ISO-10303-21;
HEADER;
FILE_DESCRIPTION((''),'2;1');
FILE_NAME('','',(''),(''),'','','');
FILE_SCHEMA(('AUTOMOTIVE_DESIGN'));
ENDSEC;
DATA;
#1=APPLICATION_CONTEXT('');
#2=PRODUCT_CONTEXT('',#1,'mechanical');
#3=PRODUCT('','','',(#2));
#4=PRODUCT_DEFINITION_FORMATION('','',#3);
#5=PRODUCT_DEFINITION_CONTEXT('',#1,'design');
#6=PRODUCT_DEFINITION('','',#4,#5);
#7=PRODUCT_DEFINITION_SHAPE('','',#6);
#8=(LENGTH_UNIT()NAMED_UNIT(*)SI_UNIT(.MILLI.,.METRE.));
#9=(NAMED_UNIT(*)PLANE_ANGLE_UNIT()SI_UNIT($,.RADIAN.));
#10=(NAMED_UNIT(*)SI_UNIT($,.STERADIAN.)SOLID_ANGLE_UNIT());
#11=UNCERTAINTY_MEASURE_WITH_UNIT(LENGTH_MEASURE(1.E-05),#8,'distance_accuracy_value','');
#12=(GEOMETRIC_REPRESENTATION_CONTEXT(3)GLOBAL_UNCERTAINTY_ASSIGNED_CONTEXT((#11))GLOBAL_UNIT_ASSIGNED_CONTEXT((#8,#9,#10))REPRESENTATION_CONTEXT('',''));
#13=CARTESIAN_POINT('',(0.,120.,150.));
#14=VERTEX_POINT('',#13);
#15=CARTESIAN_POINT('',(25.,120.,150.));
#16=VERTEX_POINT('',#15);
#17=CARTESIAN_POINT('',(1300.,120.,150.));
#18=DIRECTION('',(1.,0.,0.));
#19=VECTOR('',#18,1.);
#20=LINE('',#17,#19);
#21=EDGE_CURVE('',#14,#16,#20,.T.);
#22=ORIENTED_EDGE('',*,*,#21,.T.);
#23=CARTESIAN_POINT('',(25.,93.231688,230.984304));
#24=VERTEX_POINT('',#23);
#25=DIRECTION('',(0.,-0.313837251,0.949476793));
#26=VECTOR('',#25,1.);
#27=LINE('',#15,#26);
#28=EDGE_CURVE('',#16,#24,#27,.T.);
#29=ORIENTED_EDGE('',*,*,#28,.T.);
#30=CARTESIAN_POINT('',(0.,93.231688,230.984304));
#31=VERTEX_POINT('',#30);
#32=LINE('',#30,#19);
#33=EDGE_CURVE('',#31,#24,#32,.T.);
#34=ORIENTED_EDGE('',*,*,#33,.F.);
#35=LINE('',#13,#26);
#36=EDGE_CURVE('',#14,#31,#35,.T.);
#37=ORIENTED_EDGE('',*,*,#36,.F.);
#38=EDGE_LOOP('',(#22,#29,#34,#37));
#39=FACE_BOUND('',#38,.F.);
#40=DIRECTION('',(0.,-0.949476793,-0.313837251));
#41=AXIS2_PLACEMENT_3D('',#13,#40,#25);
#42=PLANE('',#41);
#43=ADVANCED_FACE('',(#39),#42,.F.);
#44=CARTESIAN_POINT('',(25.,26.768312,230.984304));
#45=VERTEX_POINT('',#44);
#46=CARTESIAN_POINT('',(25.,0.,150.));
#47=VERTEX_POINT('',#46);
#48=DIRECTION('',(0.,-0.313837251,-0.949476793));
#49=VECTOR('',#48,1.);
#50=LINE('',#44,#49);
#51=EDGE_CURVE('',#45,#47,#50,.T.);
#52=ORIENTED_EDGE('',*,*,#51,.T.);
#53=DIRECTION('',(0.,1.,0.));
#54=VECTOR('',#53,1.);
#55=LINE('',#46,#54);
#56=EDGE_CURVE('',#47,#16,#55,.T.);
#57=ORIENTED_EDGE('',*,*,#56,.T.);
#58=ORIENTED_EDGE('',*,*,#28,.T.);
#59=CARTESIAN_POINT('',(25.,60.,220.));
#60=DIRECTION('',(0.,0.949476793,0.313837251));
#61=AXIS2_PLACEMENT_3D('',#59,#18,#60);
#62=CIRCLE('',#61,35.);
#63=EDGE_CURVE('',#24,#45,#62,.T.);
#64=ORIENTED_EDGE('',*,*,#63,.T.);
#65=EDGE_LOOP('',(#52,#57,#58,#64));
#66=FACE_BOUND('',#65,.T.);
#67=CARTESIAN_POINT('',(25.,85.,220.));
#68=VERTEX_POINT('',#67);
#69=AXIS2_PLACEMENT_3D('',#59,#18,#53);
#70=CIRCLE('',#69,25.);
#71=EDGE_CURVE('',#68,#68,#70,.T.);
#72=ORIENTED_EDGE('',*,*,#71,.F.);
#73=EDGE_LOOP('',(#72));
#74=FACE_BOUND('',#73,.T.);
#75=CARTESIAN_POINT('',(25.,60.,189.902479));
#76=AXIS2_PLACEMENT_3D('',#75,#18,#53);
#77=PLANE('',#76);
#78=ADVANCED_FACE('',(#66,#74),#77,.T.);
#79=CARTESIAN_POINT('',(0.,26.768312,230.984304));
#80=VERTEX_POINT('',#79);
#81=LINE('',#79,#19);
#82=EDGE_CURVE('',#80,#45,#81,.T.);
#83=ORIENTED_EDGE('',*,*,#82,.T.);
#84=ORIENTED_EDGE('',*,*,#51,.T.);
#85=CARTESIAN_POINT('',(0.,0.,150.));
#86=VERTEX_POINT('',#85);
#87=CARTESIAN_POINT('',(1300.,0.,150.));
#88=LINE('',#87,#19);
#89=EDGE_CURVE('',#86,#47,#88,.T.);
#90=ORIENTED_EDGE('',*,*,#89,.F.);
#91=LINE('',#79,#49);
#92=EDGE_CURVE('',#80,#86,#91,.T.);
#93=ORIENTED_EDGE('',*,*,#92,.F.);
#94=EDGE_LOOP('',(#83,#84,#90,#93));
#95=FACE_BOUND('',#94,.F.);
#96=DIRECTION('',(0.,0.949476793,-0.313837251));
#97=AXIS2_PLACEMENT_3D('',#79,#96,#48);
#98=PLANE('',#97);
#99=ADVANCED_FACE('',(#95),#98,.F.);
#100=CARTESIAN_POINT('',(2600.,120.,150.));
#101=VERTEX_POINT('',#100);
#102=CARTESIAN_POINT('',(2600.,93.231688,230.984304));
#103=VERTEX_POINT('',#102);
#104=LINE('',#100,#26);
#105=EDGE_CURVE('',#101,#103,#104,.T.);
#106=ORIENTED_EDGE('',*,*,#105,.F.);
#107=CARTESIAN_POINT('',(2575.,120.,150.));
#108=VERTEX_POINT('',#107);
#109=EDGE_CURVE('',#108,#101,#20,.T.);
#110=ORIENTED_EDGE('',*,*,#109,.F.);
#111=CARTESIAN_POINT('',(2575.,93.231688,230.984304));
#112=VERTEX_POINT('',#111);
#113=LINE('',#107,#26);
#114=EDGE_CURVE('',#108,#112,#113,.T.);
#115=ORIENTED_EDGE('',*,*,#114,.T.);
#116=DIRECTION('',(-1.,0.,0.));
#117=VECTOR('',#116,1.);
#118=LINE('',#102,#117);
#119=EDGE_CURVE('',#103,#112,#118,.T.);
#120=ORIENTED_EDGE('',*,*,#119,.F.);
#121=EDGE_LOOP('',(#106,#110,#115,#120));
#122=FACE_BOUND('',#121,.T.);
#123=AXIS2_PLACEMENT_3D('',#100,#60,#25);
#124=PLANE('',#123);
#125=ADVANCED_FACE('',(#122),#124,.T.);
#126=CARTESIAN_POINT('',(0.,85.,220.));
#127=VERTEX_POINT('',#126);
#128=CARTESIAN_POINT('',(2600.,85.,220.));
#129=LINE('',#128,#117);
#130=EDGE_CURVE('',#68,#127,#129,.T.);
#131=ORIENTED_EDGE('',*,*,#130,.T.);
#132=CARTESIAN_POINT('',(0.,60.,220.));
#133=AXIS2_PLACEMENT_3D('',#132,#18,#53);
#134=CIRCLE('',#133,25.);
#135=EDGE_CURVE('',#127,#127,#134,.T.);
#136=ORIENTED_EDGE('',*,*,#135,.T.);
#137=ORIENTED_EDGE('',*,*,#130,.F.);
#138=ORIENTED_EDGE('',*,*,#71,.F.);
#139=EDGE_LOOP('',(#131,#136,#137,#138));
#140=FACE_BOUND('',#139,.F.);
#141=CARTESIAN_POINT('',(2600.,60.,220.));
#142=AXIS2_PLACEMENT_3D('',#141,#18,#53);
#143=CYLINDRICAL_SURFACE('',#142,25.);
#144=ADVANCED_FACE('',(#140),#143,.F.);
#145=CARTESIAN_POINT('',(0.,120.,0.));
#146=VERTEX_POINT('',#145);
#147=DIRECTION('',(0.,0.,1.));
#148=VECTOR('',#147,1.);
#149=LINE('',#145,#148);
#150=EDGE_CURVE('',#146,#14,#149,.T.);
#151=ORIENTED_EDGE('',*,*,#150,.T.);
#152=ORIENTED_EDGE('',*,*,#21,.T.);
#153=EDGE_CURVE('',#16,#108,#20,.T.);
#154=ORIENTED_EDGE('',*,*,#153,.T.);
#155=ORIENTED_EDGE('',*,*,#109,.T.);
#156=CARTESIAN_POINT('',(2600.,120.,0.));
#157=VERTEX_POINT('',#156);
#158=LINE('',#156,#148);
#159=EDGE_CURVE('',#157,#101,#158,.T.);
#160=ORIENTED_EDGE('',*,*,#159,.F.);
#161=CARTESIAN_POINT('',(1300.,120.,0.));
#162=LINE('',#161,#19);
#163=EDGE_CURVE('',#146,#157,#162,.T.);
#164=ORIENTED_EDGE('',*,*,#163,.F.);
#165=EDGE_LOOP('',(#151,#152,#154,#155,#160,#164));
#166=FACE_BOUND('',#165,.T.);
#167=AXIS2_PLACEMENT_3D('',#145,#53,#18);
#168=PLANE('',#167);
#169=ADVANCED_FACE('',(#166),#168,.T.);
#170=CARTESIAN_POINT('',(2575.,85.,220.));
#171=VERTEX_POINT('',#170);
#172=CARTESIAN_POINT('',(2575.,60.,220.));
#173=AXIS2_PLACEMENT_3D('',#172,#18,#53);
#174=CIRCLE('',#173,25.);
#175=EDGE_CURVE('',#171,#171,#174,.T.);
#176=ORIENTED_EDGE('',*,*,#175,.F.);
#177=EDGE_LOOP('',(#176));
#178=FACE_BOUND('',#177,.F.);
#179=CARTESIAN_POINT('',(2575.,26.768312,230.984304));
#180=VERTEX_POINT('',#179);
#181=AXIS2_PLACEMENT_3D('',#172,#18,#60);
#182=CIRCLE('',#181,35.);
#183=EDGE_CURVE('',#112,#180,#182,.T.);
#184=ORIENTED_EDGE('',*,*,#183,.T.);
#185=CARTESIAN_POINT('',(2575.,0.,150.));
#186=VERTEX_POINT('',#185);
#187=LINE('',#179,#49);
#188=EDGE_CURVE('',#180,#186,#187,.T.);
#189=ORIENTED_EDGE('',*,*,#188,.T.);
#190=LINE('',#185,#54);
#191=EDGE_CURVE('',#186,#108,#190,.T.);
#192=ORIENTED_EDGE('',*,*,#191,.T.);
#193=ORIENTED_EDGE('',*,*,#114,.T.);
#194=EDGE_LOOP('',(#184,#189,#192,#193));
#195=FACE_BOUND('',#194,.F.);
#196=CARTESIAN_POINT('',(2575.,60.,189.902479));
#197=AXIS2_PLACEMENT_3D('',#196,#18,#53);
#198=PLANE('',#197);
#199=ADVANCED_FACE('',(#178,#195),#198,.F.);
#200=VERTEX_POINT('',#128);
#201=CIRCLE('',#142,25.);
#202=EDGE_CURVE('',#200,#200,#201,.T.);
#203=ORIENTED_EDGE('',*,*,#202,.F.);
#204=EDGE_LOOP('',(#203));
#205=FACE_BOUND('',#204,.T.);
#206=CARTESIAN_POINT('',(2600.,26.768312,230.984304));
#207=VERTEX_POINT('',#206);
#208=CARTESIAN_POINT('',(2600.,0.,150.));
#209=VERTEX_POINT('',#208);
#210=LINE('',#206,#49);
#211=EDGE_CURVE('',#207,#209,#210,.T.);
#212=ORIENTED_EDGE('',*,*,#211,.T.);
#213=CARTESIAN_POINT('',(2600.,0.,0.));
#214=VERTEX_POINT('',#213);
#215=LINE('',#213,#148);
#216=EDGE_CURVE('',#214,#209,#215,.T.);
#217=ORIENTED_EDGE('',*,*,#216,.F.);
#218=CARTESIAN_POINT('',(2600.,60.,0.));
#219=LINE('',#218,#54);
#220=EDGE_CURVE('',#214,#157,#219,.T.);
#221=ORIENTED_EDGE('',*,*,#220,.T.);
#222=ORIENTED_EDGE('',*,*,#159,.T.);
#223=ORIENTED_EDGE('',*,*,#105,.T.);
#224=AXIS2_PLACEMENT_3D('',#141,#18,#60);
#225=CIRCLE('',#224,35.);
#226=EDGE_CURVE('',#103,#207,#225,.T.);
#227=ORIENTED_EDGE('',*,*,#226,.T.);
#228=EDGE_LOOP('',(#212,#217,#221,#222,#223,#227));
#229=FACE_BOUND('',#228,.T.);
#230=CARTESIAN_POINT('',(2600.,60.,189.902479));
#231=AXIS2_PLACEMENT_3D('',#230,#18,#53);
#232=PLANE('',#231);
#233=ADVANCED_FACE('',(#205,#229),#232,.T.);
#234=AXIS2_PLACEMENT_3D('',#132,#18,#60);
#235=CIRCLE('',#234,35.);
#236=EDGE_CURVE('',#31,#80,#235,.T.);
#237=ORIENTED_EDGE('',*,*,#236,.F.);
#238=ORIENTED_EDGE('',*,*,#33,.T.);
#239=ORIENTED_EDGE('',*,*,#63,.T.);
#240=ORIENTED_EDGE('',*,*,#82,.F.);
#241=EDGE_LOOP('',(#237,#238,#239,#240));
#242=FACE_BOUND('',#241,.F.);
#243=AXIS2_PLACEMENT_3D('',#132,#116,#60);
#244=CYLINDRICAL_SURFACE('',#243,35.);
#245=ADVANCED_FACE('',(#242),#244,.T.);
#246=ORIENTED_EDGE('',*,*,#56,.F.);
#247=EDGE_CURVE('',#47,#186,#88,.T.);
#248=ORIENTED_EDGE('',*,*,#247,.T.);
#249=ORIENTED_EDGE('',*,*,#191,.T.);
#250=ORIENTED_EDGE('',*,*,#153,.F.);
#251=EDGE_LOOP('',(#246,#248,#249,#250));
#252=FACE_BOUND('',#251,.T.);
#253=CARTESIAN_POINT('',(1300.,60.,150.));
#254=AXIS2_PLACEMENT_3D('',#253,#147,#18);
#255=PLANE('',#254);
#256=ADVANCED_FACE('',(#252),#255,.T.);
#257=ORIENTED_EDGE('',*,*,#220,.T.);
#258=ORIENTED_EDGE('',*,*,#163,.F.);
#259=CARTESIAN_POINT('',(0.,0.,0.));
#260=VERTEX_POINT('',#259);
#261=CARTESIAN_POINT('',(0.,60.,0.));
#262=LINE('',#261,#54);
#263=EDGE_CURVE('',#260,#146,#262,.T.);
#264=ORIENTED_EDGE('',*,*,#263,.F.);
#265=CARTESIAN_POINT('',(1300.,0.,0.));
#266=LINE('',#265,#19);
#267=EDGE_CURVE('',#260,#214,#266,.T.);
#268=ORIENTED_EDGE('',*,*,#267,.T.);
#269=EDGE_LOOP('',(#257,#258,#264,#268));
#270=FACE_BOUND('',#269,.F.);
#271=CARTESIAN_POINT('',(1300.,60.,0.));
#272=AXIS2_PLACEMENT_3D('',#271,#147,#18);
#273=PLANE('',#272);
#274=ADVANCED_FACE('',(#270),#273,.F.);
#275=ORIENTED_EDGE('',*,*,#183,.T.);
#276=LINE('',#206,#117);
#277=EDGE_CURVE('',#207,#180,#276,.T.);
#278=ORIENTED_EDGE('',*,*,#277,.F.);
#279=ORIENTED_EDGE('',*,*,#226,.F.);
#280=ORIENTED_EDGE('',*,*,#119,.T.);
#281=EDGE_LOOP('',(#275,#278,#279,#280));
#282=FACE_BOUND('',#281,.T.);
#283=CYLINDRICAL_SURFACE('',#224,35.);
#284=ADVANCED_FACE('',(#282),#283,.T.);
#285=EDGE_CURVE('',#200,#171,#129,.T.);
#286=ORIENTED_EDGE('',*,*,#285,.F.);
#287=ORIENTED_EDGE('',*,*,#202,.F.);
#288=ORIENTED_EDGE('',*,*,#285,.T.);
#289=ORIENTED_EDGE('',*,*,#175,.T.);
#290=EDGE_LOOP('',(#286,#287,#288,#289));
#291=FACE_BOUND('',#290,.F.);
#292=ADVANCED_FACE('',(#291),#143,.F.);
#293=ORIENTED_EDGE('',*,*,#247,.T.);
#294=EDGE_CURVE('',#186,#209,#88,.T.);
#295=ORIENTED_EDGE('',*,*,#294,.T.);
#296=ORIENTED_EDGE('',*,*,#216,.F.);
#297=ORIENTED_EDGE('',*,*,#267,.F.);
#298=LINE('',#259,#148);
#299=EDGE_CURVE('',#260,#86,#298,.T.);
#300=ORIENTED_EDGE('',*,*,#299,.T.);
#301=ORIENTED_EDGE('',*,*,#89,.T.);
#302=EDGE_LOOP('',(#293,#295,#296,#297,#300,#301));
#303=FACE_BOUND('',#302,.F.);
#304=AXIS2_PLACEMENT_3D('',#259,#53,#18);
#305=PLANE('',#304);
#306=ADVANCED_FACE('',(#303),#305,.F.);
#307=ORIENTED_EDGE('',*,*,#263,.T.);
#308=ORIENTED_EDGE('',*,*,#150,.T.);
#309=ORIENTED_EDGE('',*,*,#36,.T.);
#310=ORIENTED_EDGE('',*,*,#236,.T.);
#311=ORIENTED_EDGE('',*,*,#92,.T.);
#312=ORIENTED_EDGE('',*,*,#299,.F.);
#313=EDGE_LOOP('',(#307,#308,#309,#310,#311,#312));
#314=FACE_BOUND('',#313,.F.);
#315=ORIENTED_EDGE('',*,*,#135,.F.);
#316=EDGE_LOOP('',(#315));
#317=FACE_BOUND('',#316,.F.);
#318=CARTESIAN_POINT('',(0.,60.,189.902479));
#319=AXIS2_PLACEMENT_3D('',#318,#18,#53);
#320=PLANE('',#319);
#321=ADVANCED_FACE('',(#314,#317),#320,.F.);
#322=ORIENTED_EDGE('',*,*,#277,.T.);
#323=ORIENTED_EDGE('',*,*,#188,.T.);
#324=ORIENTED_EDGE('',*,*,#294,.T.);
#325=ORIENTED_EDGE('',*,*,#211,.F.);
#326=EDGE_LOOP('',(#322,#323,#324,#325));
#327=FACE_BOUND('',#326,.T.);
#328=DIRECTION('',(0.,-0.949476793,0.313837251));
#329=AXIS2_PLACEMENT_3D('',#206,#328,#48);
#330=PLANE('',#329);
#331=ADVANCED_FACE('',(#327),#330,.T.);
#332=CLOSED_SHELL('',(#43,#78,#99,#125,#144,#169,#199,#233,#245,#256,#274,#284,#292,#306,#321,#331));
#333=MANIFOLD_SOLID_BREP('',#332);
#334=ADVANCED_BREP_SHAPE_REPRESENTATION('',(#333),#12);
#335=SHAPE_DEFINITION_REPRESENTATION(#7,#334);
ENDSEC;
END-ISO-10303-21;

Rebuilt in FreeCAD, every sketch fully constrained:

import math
import FreeCAD as App
import Part
import Sketcher
from FreeCAD import Vector


def add_polygon(sketch, points):
    """Adds a closed chain of lines whose ends are joined by coincident constraints."""
    first, n = sketch.GeometryCount, len(points)
    for a, b in zip(points, points[1:] + points[:1]):
        sketch.addGeometry(Part.LineSegment(App.Vector(*a, 0), App.Vector(*b, 0)), False)
    for i in range(n):
        sketch.addConstraint(Sketcher.Constraint("Coincident", first + i, 2, first + (i + 1) % n, 1))

doc = App.newDocument("Part")
body = doc.addObject("PartDesign::Body", "Body")

# Sketch on XY plane
sketch1 = body.newObject("Sketcher::SketchObject", "Sketch")
sketch1.AttachmentSupport = (doc.getObject("XY_Plane"), [""])
sketch1.MapMode = "FlatFace"
add_polygon(sketch1, [(0, 120), (0, 0), (2600, 0), (2600, 120)])  # lines 0-3
sketch1.addConstraint([
    Sketcher.Constraint("Vertical", 0),
    Sketcher.Constraint("Horizontal", 1),
    Sketcher.Constraint("Vertical", 2),
    Sketcher.Constraint("Horizontal", 3),
    Sketcher.Constraint("Coincident", 0, 2, -1, 1),
    Sketcher.Constraint("DistanceX", 1, 1, 1, 2, 2600.0),
    Sketcher.Constraint("DistanceY", 0, 2, 0, 1, 120.0),
])
pad1 = body.newObject("PartDesign::Pad", "Pad")
pad1.Profile = sketch1
pad1.Length = 150

# Sketch on YZ plane
sketch2 = body.newObject("Sketcher::SketchObject", "Sketch001")
sketch2.AttachmentSupport = (doc.getObject("YZ_Plane"), [""])
sketch2.MapMode = "FlatFace"
sketch2.addGeometry([
    Part.LineSegment(Vector(27, 231, 0), Vector(0, 150, 0)),
    Part.LineSegment(Vector(0, 150, 0), Vector(120, 150, 0)),
    Part.LineSegment(Vector(120, 150, 0), Vector(93, 231, 0)),
    Part.ArcOfCircle(Part.Circle(Vector(60, 220, 0), Vector(0, 0, 1), 35), math.radians(18), math.radians(162)),
], False)
sketch2.addConstraint([
    Sketcher.Constraint("Coincident", 0, 2, 1, 1),
    Sketcher.Constraint("Coincident", 1, 2, 2, 1),
    Sketcher.Constraint("Tangent", 2, 2, 3, 1),
    Sketcher.Constraint("Tangent", 3, 2, 0, 1),
    Sketcher.Constraint("Horizontal", 1),
    Sketcher.Constraint("PointOnObject", 0, 2, -2),
    Sketcher.Constraint("Horizontal", 2, 2, 3, 2),
    Sketcher.Constraint("Radius", 3, 35.0),
    Sketcher.Constraint("DistanceX", 1, 1, 1, 2, 120.0),
    Sketcher.Constraint("DistanceY", -1, 1, 3, 3, 220.0),
    Sketcher.Constraint("DistanceY", -1, 1, 0, 2, 150.0),
])
pad2 = body.newObject("PartDesign::Pad", "Pad001")
pad2.Profile = sketch2
pad2.Length = 25
body2 = doc.addObject("PartDesign::Body", "Body001")

# Sketch on YZ plane
sketch3 = body2.newObject("Sketcher::SketchObject", "Sketch002")
sketch3.AttachmentSupport = (doc.getObject("YZ_Plane001"), [""])
sketch3.MapMode = "FlatFace"
sketch3.AttachmentOffset = App.Placement(Vector(0, 0, 2600), App.Rotation())
sketch3.addGeometry([
    Part.LineSegment(Vector(27, 231, 0), Vector(0, 150, 0)),
    Part.LineSegment(Vector(0, 150, 0), Vector(120, 150, 0)),
    Part.LineSegment(Vector(120, 150, 0), Vector(93, 231, 0)),
    Part.ArcOfCircle(Part.Circle(Vector(60, 220, 0), Vector(0, 0, 1), 35), math.radians(18), math.radians(162)),
], False)
sketch3.addConstraint([
    Sketcher.Constraint("Coincident", 0, 2, 1, 1),
    Sketcher.Constraint("Coincident", 1, 2, 2, 1),
    Sketcher.Constraint("Tangent", 2, 2, 3, 1),
    Sketcher.Constraint("Tangent", 3, 2, 0, 1),
    Sketcher.Constraint("Horizontal", 1),
    Sketcher.Constraint("PointOnObject", 0, 2, -2),
    Sketcher.Constraint("Horizontal", 2, 2, 3, 2),
    Sketcher.Constraint("Radius", 3, 35.0),
    Sketcher.Constraint("DistanceX", 1, 1, 1, 2, 120.0),
    Sketcher.Constraint("DistanceY", -1, 1, 3, 3, 220.0),
    Sketcher.Constraint("DistanceY", -1, 1, 0, 2, 150.0),
])
pad3 = body2.newObject("PartDesign::Pad", "Pad002")
pad3.Profile = sketch3
pad3.Length = 25
pad3.Reversed = True
doc.recompute()

boolean = body.newObject("PartDesign::Boolean", "Boolean")
boolean.Type = "Fuse"
boolean.addObjects([body2])

# Sketch on YZ plane
sketch4 = body.newObject("Sketcher::SketchObject", "Sketch003")
sketch4.AttachmentSupport = (doc.getObject("YZ_Plane"), [""])
sketch4.MapMode = "FlatFace"
sketch4.AttachmentOffset = App.Placement(Vector(0, 0, 2600), App.Rotation())
sketch4.addGeometry(Part.Circle(Vector(60, 220, 0), Vector(0, 0, 1), 25), False)
sketch4.addConstraint([
    Sketcher.Constraint("Diameter", 0, 50.0),
    Sketcher.Constraint("DistanceX", -1, 1, 0, 3, 60.0),
    Sketcher.Constraint("DistanceY", -1, 1, 0, 3, 220.0),
])
pocket1 = body.newObject("PartDesign::Pocket", "Pocket")
pocket1.Profile = sketch4
pocket1.Length = 3000

doc.recompute()
